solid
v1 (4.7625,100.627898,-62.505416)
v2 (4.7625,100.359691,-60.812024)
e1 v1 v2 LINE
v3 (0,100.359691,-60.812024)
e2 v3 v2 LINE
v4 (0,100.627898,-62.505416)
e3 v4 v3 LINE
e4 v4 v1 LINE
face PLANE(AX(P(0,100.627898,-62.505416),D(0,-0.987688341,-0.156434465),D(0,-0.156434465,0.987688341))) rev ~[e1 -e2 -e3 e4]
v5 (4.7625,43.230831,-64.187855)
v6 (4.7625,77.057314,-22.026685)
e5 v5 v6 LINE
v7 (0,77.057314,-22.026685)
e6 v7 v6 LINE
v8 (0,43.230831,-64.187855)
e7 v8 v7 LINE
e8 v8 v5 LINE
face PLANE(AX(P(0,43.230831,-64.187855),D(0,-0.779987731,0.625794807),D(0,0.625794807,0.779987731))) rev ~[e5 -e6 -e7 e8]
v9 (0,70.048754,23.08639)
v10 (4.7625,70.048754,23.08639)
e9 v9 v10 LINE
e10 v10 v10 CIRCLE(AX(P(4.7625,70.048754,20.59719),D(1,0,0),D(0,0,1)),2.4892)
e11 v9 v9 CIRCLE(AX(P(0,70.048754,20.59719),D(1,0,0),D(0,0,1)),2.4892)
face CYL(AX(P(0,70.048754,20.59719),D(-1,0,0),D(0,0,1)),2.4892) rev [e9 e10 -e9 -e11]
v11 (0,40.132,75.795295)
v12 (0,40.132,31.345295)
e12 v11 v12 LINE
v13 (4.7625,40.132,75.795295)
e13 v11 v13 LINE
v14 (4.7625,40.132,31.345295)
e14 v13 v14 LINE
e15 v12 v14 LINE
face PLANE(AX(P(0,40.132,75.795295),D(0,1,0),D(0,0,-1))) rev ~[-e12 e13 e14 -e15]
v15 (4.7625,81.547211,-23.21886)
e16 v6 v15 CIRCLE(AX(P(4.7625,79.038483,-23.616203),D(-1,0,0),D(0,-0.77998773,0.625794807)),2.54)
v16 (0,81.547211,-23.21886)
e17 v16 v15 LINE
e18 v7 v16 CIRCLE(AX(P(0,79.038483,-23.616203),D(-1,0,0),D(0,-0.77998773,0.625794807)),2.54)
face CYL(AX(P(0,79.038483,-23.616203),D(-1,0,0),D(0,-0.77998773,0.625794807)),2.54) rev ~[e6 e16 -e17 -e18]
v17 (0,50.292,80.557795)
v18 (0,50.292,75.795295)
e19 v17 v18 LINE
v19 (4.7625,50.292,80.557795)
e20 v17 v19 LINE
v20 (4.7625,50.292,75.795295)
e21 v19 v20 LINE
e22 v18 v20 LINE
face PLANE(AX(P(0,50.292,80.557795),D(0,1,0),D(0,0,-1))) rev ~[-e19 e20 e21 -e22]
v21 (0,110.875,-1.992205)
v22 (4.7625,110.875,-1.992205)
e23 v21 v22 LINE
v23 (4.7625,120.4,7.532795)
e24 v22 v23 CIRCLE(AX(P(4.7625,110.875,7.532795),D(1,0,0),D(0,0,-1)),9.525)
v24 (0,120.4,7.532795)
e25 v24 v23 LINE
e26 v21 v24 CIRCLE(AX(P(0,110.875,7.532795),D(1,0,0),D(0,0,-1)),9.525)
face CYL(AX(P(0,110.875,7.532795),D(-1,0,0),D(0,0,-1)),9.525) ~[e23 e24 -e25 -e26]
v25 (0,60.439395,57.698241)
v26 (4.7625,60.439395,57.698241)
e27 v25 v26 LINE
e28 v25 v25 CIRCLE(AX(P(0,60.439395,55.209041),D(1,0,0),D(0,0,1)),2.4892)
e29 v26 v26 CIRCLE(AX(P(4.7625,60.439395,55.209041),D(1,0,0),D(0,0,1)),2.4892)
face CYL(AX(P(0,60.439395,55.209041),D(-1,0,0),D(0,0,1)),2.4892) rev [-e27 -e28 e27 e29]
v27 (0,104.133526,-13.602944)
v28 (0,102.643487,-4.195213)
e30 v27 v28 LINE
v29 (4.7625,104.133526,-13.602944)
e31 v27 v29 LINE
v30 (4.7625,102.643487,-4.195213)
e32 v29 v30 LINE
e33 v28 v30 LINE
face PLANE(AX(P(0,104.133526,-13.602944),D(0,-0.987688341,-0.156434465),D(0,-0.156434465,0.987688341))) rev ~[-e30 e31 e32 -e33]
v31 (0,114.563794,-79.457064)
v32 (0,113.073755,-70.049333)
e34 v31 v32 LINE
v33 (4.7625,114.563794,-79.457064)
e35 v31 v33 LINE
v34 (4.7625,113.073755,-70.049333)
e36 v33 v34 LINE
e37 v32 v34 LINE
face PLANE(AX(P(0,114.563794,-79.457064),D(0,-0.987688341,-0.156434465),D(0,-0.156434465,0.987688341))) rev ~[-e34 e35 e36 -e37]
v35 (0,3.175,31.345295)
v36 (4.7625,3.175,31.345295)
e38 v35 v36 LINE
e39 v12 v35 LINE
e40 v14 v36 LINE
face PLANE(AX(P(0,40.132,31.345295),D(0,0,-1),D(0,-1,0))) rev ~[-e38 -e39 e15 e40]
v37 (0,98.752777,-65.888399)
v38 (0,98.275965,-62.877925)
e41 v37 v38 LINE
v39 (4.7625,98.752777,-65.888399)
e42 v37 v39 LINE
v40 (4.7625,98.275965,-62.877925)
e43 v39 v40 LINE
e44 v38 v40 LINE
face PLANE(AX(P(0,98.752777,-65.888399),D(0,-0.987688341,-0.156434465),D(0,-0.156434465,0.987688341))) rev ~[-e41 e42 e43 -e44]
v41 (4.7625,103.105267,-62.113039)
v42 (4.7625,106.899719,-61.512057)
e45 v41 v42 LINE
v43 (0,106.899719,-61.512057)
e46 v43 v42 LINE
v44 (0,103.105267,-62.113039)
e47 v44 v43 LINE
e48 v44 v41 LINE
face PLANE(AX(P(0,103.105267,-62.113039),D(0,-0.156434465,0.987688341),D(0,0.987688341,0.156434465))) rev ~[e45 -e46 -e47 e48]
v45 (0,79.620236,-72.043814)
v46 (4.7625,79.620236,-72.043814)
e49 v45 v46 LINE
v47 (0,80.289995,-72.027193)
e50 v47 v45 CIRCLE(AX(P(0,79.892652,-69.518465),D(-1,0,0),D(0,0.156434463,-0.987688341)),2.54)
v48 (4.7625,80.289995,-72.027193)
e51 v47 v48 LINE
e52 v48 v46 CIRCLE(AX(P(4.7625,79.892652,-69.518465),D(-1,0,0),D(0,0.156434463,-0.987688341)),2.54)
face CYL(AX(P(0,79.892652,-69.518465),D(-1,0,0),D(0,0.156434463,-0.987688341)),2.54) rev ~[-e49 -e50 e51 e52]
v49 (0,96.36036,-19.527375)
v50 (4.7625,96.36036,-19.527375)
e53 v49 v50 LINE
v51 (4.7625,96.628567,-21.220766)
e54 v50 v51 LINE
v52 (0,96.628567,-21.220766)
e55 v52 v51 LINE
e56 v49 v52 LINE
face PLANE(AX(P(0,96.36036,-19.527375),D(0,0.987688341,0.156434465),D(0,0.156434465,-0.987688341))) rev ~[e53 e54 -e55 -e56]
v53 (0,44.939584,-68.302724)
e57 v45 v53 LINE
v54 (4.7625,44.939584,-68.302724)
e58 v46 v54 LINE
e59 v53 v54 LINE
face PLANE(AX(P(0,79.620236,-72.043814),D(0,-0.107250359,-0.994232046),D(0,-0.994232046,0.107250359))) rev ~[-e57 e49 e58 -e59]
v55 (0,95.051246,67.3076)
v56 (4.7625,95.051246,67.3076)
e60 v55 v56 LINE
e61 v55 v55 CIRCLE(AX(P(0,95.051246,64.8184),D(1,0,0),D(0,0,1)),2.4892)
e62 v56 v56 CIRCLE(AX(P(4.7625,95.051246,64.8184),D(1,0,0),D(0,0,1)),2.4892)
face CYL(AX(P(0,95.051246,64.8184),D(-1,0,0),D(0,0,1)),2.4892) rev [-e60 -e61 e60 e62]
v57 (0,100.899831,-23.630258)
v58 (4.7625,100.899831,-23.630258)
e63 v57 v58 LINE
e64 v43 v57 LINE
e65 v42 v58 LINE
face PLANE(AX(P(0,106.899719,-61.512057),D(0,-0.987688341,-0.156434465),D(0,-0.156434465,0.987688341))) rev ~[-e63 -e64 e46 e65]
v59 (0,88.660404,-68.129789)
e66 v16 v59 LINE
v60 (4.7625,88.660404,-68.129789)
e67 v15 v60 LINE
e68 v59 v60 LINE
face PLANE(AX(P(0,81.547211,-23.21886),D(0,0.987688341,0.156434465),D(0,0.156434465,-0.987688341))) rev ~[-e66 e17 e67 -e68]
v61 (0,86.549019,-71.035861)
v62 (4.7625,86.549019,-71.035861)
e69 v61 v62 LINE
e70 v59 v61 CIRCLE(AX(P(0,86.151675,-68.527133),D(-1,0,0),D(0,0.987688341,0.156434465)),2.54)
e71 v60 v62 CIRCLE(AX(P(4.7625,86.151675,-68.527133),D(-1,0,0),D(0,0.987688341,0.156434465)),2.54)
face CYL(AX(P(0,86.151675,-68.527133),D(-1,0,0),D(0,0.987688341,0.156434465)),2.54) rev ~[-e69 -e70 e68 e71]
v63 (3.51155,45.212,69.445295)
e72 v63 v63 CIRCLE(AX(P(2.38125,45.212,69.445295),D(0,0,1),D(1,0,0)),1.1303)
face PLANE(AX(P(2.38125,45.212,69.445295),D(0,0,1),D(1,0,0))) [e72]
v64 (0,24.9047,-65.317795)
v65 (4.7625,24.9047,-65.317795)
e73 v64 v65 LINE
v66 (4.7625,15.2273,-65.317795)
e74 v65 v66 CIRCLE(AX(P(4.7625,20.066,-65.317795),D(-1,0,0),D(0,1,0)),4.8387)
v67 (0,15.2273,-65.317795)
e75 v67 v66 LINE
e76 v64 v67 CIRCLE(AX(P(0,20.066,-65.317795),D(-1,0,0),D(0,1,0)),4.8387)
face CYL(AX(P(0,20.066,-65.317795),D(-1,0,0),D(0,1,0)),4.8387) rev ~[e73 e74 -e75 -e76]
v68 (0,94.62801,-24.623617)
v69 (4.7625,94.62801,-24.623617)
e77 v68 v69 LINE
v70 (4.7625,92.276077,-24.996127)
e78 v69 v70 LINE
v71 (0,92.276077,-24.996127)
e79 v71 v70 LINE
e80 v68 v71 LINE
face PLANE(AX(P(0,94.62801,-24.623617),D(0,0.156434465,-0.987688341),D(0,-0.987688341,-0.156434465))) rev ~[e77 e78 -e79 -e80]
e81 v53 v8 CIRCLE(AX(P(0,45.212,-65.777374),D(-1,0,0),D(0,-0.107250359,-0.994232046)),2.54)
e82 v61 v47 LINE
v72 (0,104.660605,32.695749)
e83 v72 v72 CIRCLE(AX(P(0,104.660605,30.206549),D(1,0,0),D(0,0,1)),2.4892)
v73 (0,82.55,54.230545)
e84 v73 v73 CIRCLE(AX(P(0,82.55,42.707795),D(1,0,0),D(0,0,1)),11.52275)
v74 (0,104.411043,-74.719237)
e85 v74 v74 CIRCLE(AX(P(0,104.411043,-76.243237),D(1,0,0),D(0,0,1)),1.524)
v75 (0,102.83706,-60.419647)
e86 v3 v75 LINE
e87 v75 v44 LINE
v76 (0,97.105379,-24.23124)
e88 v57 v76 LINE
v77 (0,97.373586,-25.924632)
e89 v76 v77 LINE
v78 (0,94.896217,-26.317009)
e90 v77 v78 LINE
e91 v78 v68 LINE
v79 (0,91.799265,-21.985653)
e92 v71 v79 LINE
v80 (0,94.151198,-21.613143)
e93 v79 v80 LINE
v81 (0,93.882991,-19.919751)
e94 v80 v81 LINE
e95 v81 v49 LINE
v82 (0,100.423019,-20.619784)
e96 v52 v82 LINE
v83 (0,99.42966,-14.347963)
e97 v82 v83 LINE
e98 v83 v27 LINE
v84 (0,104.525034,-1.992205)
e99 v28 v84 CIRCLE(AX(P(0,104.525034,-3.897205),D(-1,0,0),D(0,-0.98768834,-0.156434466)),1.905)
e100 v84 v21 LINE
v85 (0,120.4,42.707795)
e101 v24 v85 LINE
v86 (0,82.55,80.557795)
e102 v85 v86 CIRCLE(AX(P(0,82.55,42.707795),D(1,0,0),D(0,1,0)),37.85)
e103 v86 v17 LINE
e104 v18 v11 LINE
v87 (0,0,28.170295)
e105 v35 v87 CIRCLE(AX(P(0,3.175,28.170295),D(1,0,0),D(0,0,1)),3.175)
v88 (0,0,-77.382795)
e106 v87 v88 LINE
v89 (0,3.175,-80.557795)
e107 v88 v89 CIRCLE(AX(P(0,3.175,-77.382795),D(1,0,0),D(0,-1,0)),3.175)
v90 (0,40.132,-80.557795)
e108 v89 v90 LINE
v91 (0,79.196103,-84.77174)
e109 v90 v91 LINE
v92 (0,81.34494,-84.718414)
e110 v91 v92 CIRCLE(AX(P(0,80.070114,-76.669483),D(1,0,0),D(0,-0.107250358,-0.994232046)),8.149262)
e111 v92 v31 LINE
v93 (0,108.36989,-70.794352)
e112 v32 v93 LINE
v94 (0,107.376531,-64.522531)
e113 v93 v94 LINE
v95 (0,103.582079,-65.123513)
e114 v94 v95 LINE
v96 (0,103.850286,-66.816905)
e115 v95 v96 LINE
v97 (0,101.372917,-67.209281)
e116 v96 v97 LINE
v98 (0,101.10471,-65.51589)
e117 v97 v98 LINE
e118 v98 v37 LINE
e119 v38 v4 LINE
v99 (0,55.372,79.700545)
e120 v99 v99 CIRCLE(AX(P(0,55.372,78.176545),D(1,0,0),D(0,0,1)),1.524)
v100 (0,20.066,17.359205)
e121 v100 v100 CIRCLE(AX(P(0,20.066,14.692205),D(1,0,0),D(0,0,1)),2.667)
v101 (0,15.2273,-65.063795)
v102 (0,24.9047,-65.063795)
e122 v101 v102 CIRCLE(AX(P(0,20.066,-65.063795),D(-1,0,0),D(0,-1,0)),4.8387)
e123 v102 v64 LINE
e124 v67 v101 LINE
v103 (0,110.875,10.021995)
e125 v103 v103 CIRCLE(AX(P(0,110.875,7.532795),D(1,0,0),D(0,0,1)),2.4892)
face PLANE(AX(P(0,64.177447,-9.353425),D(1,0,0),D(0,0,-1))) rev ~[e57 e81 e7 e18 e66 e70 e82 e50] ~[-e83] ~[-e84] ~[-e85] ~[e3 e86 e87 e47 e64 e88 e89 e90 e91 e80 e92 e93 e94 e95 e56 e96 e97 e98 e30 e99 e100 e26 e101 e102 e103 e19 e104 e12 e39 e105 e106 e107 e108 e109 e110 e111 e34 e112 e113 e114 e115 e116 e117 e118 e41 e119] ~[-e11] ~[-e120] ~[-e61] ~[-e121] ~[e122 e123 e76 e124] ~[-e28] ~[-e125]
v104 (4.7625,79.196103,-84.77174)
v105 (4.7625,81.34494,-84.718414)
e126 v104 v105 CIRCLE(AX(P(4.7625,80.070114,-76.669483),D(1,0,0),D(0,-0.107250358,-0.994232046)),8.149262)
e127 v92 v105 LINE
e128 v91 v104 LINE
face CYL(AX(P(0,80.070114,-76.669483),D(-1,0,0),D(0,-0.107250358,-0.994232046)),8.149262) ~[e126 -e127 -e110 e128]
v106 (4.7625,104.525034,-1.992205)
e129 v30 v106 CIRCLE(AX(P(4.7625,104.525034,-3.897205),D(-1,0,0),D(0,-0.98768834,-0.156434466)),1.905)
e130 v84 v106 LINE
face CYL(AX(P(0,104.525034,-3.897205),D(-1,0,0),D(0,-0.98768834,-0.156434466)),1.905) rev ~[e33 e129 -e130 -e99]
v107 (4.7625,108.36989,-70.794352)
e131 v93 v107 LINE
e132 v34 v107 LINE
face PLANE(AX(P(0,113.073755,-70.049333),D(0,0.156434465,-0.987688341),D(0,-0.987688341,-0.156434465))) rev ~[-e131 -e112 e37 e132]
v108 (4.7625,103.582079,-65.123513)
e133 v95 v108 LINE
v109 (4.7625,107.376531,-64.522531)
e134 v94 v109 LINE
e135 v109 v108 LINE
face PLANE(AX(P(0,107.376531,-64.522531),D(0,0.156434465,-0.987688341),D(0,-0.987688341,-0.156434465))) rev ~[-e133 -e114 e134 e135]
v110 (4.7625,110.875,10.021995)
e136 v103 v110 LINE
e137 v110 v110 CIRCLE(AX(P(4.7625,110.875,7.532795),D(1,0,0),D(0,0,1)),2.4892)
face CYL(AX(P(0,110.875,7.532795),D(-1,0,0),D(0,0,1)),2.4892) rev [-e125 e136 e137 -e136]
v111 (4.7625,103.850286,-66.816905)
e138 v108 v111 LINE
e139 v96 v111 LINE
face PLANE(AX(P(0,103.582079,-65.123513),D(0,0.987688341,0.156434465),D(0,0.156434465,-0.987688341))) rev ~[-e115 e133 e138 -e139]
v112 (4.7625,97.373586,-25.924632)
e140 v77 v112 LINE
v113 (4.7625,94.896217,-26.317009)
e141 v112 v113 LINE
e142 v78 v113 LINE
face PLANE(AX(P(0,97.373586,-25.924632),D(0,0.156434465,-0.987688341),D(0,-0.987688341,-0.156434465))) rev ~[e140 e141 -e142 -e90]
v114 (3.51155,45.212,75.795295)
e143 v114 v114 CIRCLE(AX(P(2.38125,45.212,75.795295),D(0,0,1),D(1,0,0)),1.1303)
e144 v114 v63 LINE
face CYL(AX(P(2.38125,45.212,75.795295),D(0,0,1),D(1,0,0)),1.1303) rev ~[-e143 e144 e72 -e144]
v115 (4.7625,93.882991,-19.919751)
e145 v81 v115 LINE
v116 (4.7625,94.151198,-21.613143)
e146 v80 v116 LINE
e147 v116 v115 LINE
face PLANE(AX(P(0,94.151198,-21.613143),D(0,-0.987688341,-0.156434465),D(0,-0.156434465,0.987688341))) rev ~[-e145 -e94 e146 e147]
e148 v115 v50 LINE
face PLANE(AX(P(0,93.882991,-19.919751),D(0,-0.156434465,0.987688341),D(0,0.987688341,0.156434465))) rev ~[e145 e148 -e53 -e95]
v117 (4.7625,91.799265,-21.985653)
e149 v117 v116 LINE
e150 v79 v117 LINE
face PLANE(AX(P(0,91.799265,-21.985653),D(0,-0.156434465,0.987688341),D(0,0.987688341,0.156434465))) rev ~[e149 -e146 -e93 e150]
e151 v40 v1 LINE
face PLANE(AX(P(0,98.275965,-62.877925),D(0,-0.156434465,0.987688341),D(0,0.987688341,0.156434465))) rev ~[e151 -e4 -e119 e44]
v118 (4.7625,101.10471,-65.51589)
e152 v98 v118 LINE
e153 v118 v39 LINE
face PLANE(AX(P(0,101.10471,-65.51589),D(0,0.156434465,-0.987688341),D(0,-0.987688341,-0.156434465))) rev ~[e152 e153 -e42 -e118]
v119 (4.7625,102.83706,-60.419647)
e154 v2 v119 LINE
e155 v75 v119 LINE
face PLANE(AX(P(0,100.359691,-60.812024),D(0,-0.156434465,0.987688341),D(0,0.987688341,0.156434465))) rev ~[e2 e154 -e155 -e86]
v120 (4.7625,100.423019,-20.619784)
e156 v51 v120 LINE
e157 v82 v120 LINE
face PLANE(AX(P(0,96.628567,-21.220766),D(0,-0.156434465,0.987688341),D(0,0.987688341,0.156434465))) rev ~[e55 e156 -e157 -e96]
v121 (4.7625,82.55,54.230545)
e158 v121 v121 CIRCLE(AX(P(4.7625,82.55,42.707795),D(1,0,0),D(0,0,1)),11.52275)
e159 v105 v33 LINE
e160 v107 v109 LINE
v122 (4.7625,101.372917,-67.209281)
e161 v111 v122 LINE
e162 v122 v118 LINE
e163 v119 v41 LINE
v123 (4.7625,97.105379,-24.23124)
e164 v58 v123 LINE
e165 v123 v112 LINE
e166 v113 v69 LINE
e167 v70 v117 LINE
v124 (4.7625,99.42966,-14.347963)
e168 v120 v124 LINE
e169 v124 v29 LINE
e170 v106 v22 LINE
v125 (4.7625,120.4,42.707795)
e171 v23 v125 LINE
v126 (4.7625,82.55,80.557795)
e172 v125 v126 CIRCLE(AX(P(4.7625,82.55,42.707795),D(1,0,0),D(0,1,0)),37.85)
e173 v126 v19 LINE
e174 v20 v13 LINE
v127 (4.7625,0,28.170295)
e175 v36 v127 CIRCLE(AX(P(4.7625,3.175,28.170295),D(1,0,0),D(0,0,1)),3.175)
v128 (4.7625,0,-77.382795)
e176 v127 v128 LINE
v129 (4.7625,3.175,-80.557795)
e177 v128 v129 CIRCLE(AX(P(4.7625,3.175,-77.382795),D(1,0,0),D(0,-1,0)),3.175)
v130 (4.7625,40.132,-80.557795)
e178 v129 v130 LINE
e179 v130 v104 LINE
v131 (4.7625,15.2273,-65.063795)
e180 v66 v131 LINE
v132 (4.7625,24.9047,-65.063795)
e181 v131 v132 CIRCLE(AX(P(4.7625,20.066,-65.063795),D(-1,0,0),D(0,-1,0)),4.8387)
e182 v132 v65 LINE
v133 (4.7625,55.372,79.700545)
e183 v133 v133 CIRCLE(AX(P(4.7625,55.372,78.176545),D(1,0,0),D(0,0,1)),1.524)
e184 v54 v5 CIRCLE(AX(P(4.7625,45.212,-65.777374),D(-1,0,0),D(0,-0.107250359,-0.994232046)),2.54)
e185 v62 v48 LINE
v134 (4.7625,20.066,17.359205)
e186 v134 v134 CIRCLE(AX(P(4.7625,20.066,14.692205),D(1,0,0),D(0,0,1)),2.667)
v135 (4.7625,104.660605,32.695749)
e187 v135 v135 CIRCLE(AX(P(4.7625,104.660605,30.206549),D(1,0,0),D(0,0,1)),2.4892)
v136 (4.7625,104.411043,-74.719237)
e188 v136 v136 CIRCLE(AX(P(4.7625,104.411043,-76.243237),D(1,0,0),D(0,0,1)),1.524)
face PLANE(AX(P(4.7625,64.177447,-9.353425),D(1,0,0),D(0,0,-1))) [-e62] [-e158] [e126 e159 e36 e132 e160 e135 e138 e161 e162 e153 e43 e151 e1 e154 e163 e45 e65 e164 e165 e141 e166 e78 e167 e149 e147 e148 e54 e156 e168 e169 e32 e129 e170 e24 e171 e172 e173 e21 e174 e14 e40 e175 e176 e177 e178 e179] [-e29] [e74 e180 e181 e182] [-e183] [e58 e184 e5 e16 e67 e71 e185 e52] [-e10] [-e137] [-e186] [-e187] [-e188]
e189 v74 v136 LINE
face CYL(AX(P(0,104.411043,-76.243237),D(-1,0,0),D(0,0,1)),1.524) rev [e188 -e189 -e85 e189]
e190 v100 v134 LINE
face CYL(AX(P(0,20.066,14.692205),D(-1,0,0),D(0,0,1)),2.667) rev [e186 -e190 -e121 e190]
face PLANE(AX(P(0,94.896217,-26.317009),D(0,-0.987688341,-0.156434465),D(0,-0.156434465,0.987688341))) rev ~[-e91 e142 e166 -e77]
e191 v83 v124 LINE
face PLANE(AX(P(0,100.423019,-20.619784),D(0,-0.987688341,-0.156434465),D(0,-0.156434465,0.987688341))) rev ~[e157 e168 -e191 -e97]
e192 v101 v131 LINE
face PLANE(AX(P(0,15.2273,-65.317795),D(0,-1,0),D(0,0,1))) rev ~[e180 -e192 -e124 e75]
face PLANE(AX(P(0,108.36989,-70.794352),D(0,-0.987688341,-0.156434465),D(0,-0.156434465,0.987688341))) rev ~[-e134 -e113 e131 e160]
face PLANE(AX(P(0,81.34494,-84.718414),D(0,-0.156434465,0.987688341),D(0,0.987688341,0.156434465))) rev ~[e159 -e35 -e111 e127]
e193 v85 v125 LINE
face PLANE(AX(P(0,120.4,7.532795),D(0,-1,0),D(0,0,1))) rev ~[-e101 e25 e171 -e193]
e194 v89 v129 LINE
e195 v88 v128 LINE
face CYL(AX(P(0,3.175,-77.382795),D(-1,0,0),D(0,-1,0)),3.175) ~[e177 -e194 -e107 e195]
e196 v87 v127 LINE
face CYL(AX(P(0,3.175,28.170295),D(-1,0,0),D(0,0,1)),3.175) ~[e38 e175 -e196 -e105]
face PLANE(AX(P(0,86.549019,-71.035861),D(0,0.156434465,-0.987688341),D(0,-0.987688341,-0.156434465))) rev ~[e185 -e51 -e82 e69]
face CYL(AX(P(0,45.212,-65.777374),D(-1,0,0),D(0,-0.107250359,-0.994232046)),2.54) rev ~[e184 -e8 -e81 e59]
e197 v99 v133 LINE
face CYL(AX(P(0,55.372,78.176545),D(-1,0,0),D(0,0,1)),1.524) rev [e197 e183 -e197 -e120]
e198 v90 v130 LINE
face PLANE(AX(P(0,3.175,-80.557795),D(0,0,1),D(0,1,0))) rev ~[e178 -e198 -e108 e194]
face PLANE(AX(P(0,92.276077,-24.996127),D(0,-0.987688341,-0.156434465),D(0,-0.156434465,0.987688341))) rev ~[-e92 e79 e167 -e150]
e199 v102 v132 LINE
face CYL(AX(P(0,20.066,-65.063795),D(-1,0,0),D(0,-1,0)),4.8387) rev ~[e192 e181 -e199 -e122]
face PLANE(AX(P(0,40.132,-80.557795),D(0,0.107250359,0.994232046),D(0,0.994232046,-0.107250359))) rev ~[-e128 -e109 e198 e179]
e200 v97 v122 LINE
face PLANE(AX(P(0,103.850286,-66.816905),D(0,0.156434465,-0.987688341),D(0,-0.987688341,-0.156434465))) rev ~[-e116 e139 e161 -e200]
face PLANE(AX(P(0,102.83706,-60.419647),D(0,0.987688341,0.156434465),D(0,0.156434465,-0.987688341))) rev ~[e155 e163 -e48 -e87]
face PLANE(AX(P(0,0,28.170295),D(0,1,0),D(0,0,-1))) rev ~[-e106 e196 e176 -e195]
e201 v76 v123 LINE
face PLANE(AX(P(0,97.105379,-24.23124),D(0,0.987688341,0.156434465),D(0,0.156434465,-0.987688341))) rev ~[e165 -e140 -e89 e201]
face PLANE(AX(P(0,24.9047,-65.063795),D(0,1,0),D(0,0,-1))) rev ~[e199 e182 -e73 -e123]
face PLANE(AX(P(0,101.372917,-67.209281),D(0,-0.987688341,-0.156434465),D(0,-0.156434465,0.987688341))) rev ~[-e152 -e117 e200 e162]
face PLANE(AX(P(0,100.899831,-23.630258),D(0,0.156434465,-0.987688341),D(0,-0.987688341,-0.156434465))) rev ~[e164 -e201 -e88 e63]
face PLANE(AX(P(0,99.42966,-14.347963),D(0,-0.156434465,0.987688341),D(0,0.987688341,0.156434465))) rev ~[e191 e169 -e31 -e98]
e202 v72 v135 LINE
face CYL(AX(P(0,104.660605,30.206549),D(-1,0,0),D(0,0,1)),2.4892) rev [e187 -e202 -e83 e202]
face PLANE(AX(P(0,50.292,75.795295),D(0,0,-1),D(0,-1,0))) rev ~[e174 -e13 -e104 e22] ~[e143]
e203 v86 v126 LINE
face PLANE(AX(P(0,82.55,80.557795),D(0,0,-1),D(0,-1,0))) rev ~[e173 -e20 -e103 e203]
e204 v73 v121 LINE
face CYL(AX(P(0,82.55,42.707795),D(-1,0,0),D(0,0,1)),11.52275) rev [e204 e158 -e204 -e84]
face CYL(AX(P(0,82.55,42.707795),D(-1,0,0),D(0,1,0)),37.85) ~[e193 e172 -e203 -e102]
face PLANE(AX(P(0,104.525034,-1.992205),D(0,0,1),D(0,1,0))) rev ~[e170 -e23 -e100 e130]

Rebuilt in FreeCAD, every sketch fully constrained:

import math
import FreeCAD as App
import Part
import Sketcher
Q = App.Units.Quantity

doc = App.newDocument("Part")
params = doc.addObject("Spreadsheet::Sheet", "Params")
for row, (alias, value) in enumerate([
    ("sketch1_radius", "0.1 in"),
    ("sketch1_diameter", "0.21 in"),
    ("sketch1_diameter2", "0.12 in"),
    ("sketch1_diameter3", "0.196 in"),
    ("sketch1_width", "0.4 in"),
    ("pad1_length", "0.1875 in"),
    ("sketch2_diameter", "0.089 in"),
    ("pocket1_length", "0.25 in"),
], start=1):
    params.set(f"A{row}", alias)
    params.set(f"B{row}", "=" + value)
    params.setAlias(f"B{row}", alias)

body = doc.addObject("PartDesign::Body", "Body")

sketch1 = body.newObject("Sketcher::SketchObject", "Sketch")
sketch1.AttachmentSupport = (doc.getObject("YZ_Plane"), [""])
sketch1.MapMode = "FlatFace"
sketch1.addGeometry(Part.LineSegment(App.Vector(0, 28.170295, 0), App.Vector(0, -77.382795, 0)), False)
sketch1.addGeometry(Part.ArcOfCircle(Part.Circle(App.Vector(3.175, -77.382795, 0), App.Vector(0, 0, 1), 3.175), math.radians(180), math.radians(270)), False)
sketch1.addGeometry(Part.LineSegment(App.Vector(3.175, -80.557795, 0), App.Vector(40.132, -80.557795, 0)), False)
sketch1.addGeometry(Part.LineSegment(App.Vector(40.132, -80.557795, 0), App.Vector(79.196103, -84.77174, 0)), False)
sketch1.addGeometry(Part.ArcOfCircle(Part.Circle(App.Vector(80.070114, -76.669483, 0), App.Vector(0, 0, 1), 8.149262), math.radians(-96.156835), math.radians(-81)), False)
sketch1.addGeometry(Part.LineSegment(App.Vector(81.34494, -84.718414, 0), App.Vector(114.563794, -79.457064, 0)), False)
sketch1.addGeometry(Part.LineSegment(App.Vector(114.563794, -79.457064, 0), App.Vector(113.073755, -70.049333, 0)), False)
sketch1.addGeometry(Part.LineSegment(App.Vector(113.073755, -70.049333, 0), App.Vector(108.36989, -70.794352, 0)), False)
sketch1.addGeometry(Part.LineSegment(App.Vector(108.36989, -70.794352, 0), App.Vector(107.376531, -64.522531, 0)), False)
sketch1.addGeometry(Part.LineSegment(App.Vector(107.376531, -64.522531, 0), App.Vector(103.582079, -65.123513, 0)), False)
sketch1.addGeometry(Part.LineSegment(App.Vector(103.582079, -65.123513, 0), App.Vector(103.850286, -66.816905, 0)), False)
sketch1.addGeometry(Part.LineSegment(App.Vector(103.850286, -66.816905, 0), App.Vector(101.372917, -67.209281, 0)), False)
sketch1.addGeometry(Part.LineSegment(App.Vector(101.372917, -67.209281, 0), App.Vector(101.10471, -65.51589, 0)), False)
sketch1.addGeometry(Part.LineSegment(App.Vector(101.10471, -65.51589, 0), App.Vector(98.752777, -65.888399, 0)), False)
sketch1.addGeometry(Part.LineSegment(App.Vector(98.752777, -65.888399, 0), App.Vector(98.275965, -62.877925, 0)), False)
sketch1.addGeometry(Part.LineSegment(App.Vector(98.275965, -62.877925, 0), App.Vector(100.627898, -62.505416, 0)), False)
sketch1.addGeometry(Part.LineSegment(App.Vector(100.627898, -62.505416, 0), App.Vector(100.359691, -60.812024, 0)), False)
sketch1.addGeometry(Part.LineSegment(App.Vector(100.359691, -60.812024, 0), App.Vector(102.83706, -60.419647, 0)), False)
sketch1.addGeometry(Part.LineSegment(App.Vector(102.83706, -60.419647, 0), App.Vector(103.105267, -62.113039, 0)), False)
sketch1.addGeometry(Part.LineSegment(App.Vector(103.105267, -62.113039, 0), App.Vector(106.899719, -61.512057, 0)), False)
sketch1.addGeometry(Part.LineSegment(App.Vector(106.899719, -61.512057, 0), App.Vector(100.899831, -23.630258, 0)), False)
sketch1.addGeometry(Part.LineSegment(App.Vector(100.899831, -23.630258, 0), App.Vector(97.105379, -24.23124, 0)), False)
sketch1.addGeometry(Part.LineSegment(App.Vector(97.105379, -24.23124, 0), App.Vector(97.373586, -25.924632, 0)), False)
sketch1.addGeometry(Part.LineSegment(App.Vector(97.373586, -25.924632, 0), App.Vector(94.896217, -26.317009, 0)), False)
sketch1.addGeometry(Part.LineSegment(App.Vector(94.896217, -26.317009, 0), App.Vector(94.62801, -24.623617, 0)), False)
sketch1.addGeometry(Part.LineSegment(App.Vector(94.62801, -24.623617, 0), App.Vector(92.276077, -24.996127, 0)), False)
sketch1.addGeometry(Part.LineSegment(App.Vector(92.276077, -24.996127, 0), App.Vector(91.799265, -21.985653, 0)), False)
sketch1.addGeometry(Part.LineSegment(App.Vector(91.799265, -21.985653, 0), App.Vector(94.151198, -21.613143, 0)), False)
sketch1.addGeometry(Part.LineSegment(App.Vector(94.151198, -21.613143, 0), App.Vector(93.882991, -19.919751, 0)), False)
sketch1.addGeometry(Part.LineSegment(App.Vector(93.882991, -19.919751, 0), App.Vector(96.36036, -19.527375, 0)), False)
sketch1.addGeometry(Part.LineSegment(App.Vector(96.36036, -19.527375, 0), App.Vector(96.628567, -21.220766, 0)), False)
sketch1.addGeometry(Part.LineSegment(App.Vector(96.628567, -21.220766, 0), App.Vector(100.423019, -20.619784, 0)), False)
sketch1.addGeometry(Part.LineSegment(App.Vector(100.423019, -20.619784, 0), App.Vector(99.42966, -14.347963, 0)), False)
sketch1.addGeometry(Part.LineSegment(App.Vector(99.42966, -14.347963, 0), App.Vector(104.133526, -13.602944, 0)), False)
sketch1.addGeometry(Part.LineSegment(App.Vector(104.133526, -13.602944, 0), App.Vector(102.643487, -4.195213, 0)), False)
sketch1.addGeometry(Part.ArcOfCircle(Part.Circle(App.Vector(104.525034, -3.897205, 0), App.Vector(0, 0, 1), 1.905), math.radians(90), math.radians(189)), False)
sketch1.addGeometry(Part.LineSegment(App.Vector(104.525034, -1.992205, 0), App.Vector(110.875, -1.992205, 0)), False)
sketch1.addGeometry(Part.ArcOfCircle(Part.Circle(App.Vector(110.875, 7.532795, 0), App.Vector(0, 0, 1), 9.525), math.radians(-90), math.radians(0)), False)
sketch1.addGeometry(Part.LineSegment(App.Vector(120.4, 7.532795, 0), App.Vector(120.4, 42.707795, 0)), False)
sketch1.addGeometry(Part.ArcOfCircle(Part.Circle(App.Vector(82.55, 42.707795, 0), App.Vector(0, 0, 1), 37.85), math.radians(0), math.radians(90)), False)
sketch1.addGeometry(Part.LineSegment(App.Vector(82.55, 80.557795, 0), App.Vector(50.292, 80.557795, 0)), False)
sketch1.addGeometry(Part.LineSegment(App.Vector(50.292, 80.557795, 0), App.Vector(50.292, 75.795295, 0)), False)
sketch1.addGeometry(Part.LineSegment(App.Vector(50.292, 75.795295, 0), App.Vector(40.132, 75.795295, 0)), False)
sketch1.addGeometry(Part.LineSegment(App.Vector(40.132, 75.795295, 0), App.Vector(40.132, 31.345295, 0)), False)
sketch1.addGeometry(Part.LineSegment(App.Vector(40.132, 31.345295, 0), App.Vector(3.175, 31.345295, 0)), False)
sketch1.addGeometry(Part.ArcOfCircle(Part.Circle(App.Vector(3.175, 28.170295, 0), App.Vector(0, 0, 1), 3.175), math.radians(90), math.radians(180)), False)
sketch1.addGeometry(Part.Circle(App.Vector(20.066, 14.692205, 0), App.Vector(0, 0, 1), 2.667), False)
sketch1.addGeometry(Part.Circle(App.Vector(55.372, 78.176545, 0), App.Vector(0, 0, 1), 1.524), False)
sketch1.addGeometry(Part.Circle(App.Vector(60.439395, 55.209041, 0), App.Vector(0, 0, 1), 2.4892), False)
sketch1.addGeometry(Part.ArcOfCircle(Part.Circle(App.Vector(20.066, -65.317795, 0), App.Vector(0, 0, 1), 4.8387), math.radians(180), math.radians(360)), False)
sketch1.addGeometry(Part.LineSegment(App.Vector(15.2273, -65.317795, 0), App.Vector(15.2273, -65.063795, 0)), False)
sketch1.addGeometry(Part.ArcOfCircle(Part.Circle(App.Vector(20.066, -65.063795, 0), App.Vector(0, 0, 1), 4.8387), math.radians(0), math.radians(180)), False)
sketch1.addGeometry(Part.LineSegment(App.Vector(24.9047, -65.063795, 0), App.Vector(24.9047, -65.317795, 0)), False)
sketch1.addGeometry(Part.Circle(App.Vector(82.55, 42.707795, 0), App.Vector(0, 0, 1), 11.52275), False)
sketch1.addGeometry(Part.Circle(App.Vector(70.048754, 20.59719, 0), App.Vector(0, 0, 1), 2.4892), False)
sketch1.addGeometry(Part.Circle(App.Vector(95.051246, 64.8184, 0), App.Vector(0, 0, 1), 2.4892), False)
sketch1.addGeometry(Part.Circle(App.Vector(104.660605, 30.206549, 0), App.Vector(0, 0, 1), 2.4892), False)
sketch1.addGeometry(Part.Circle(App.Vector(110.875, 7.532795, 0), App.Vector(0, 0, 1), 2.4892), False)
sketch1.addGeometry(Part.ArcOfCircle(Part.Circle(App.Vector(86.151675, -68.527133, 0), App.Vector(0, 0, 1), 2.54), math.radians(-81), math.radians(9)), False)
sketch1.addGeometry(Part.LineSegment(App.Vector(86.549019, -71.035861, 0), App.Vector(80.289995, -72.027193, 0)), False)
sketch1.addGeometry(Part.ArcOfCircle(Part.Circle(App.Vector(79.892652, -69.518465, 0), App.Vector(0, 0, 1), 2.54), math.radians(-96.156835), math.radians(-81)), False)
sketch1.addGeometry(Part.LineSegment(App.Vector(79.620236, -72.043814, 0), App.Vector(44.939584, -68.302724, 0)), False)
sketch1.addGeometry(Part.ArcOfCircle(Part.Circle(App.Vector(45.212, -65.777374, 0), App.Vector(0, 0, 1), 2.54), math.radians(141.259452), math.radians(263.843165)), False)
sketch1.addGeometry(Part.LineSegment(App.Vector(43.230831, -64.187855, 0), App.Vector(77.057314, -22.026685, 0)), False)
sketch1.addGeometry(Part.ArcOfCircle(Part.Circle(App.Vector(79.038483, -23.616203, 0), App.Vector(0, 0, 1), 2.54), math.radians(9), math.radians(141.259452)), False)
sketch1.addGeometry(Part.LineSegment(App.Vector(81.547211, -23.21886, 0), App.Vector(88.660404, -68.129789, 0)), False)
sketch1.addGeometry(Part.Circle(App.Vector(104.411043, -76.243237, 0), App.Vector(0, 0, 1), 1.524), False)
sketch1.addConstraint(Sketcher.Constraint("Tangent", 0, 2, 1, 1))
sketch1.addConstraint(Sketcher.Constraint("Tangent", 1, 2, 2, 1))
sketch1.addConstraint(Sketcher.Constraint("Coincident", 2, 2, 3, 1))
sketch1.addConstraint(Sketcher.Constraint("Tangent", 3, 2, 4, 1))
sketch1.addConstraint(Sketcher.Constraint("Tangent", 4, 2, 5, 1))
sketch1.addConstraint(Sketcher.Constraint("Coincident", 5, 2, 6, 1))
sketch1.addConstraint(Sketcher.Constraint("Coincident", 6, 2, 7, 1))
sketch1.addConstraint(Sketcher.Constraint("Coincident", 7, 2, 8, 1))
sketch1.addConstraint(Sketcher.Constraint("Coincident", 8, 2, 9, 1))
sketch1.addConstraint(Sketcher.Constraint("Coincident", 9, 2, 10, 1))
sketch1.addConstraint(Sketcher.Constraint("Coincident", 10, 2, 11, 1))
sketch1.addConstraint(Sketcher.Constraint("Coincident", 11, 2, 12, 1))
sketch1.addConstraint(Sketcher.Constraint("Coincident", 12, 2, 13, 1))
sketch1.addConstraint(Sketcher.Constraint("Coincident", 13, 2, 14, 1))
sketch1.addConstraint(Sketcher.Constraint("Coincident", 14, 2, 15, 1))
sketch1.addConstraint(Sketcher.Constraint("Coincident", 15, 2, 16, 1))
sketch1.addConstraint(Sketcher.Constraint("Coincident", 16, 2, 17, 1))
sketch1.addConstraint(Sketcher.Constraint("Coincident", 17, 2, 18, 1))
sketch1.addConstraint(Sketcher.Constraint("Coincident", 18, 2, 19, 1))
sketch1.addConstraint(Sketcher.Constraint("Coincident", 19, 2, 20, 1))
sketch1.addConstraint(Sketcher.Constraint("Coincident", 20, 2, 21, 1))
sketch1.addConstraint(Sketcher.Constraint("Coincident", 21, 2, 22, 1))
sketch1.addConstraint(Sketcher.Constraint("Coincident", 22, 2, 23, 1))
sketch1.addConstraint(Sketcher.Constraint("Coincident", 23, 2, 24, 1))
sketch1.addConstraint(Sketcher.Constraint("Coincident", 24, 2, 25, 1))
sketch1.addConstraint(Sketcher.Constraint("Coincident", 25, 2, 26, 1))
sketch1.addConstraint(Sketcher.Constraint("Coincident", 26, 2, 27, 1))
sketch1.addConstraint(Sketcher.Constraint("Coincident", 27, 2, 28, 1))
sketch1.addConstraint(Sketcher.Constraint("Coincident", 28, 2, 29, 1))
sketch1.addConstraint(Sketcher.Constraint("Coincident", 29, 2, 30, 1))
sketch1.addConstraint(Sketcher.Constraint("Coincident", 30, 2, 31, 1))
sketch1.addConstraint(Sketcher.Constraint("Coincident", 31, 2, 32, 1))
sketch1.addConstraint(Sketcher.Constraint("Coincident", 32, 2, 33, 1))
sketch1.addConstraint(Sketcher.Constraint("Coincident", 33, 2, 34, 1))
sketch1.addConstraint(Sketcher.Constraint("Tangent", 34, 2, 35, 2))
sketch1.addConstraint(Sketcher.Constraint("Tangent", 35, 1, 36, 1))
sketch1.addConstraint(Sketcher.Constraint("Tangent", 36, 2, 37, 1))
sketch1.addConstraint(Sketcher.Constraint("Tangent", 37, 2, 38, 1))
sketch1.addConstraint(Sketcher.Constraint("Tangent", 38, 2, 39, 1))
sketch1.addConstraint(Sketcher.Constraint("Tangent", 39, 2, 40, 1))
sketch1.addConstraint(Sketcher.Constraint("Coincident", 40, 2, 41, 1))
sketch1.addConstraint(Sketcher.Constraint("Coincident", 41, 2, 42, 1))
sketch1.addConstraint(Sketcher.Constraint("Coincident", 42, 2, 43, 1))
sketch1.addConstraint(Sketcher.Constraint("Coincident", 43, 2, 44, 1))
sketch1.addConstraint(Sketcher.Constraint("Tangent", 44, 2, 45, 1))
sketch1.addConstraint(Sketcher.Constraint("Tangent", 45, 2, 0, 1))
sketch1.addConstraint(Sketcher.Constraint("Tangent", 49, 1, 50, 1))
sketch1.addConstraint(Sketcher.Constraint("Tangent", 50, 2, 51, 2))
sketch1.addConstraint(Sketcher.Constraint("Tangent", 51, 1, 52, 1))
sketch1.addConstraint(Sketcher.Constraint("Tangent", 52, 2, 49, 2))
sketch1.addConstraint(Sketcher.Constraint("Tangent", 58, 1, 59, 1))
sketch1.addConstraint(Sketcher.Constraint("Tangent", 59, 2, 60, 2))
sketch1.addConstraint(Sketcher.Constraint("Tangent", 60, 1, 61, 1))
sketch1.addConstraint(Sketcher.Constraint("Tangent", 61, 2, 62, 2))
sketch1.addConstraint(Sketcher.Constraint("Tangent", 62, 1, 63, 1))
sketch1.addConstraint(Sketcher.Constraint("Tangent", 63, 2, 64, 2))
sketch1.addConstraint(Sketcher.Constraint("Tangent", 64, 1, 65, 1))
sketch1.addConstraint(Sketcher.Constraint("Tangent", 65, 2, 58, 2))
sketch1.addConstraint(Sketcher.Constraint("Vertical", 0))
sketch1.addConstraint(Sketcher.Constraint("Horizontal", 2))
sketch1.addConstraint(Sketcher.Constraint("Horizontal", 36))
sketch1.addConstraint(Sketcher.Constraint("Vertical", 38))
sketch1.addConstraint(Sketcher.Constraint("Horizontal", 40))
sketch1.addConstraint(Sketcher.Constraint("Vertical", 41))
sketch1.addConstraint(Sketcher.Constraint("Horizontal", 42))
sketch1.addConstraint(Sketcher.Constraint("Vertical", 43))
sketch1.addConstraint(Sketcher.Constraint("Horizontal", 44))
sketch1.addConstraint(Sketcher.Constraint("Vertical", 50))
sketch1.addConstraint(Sketcher.Constraint("Vertical", 52))
sketch1.addConstraint(Sketcher.Constraint("Coincident", 53, 3, 39, 3))
sketch1.addConstraint(Sketcher.Constraint("Coincident", 57, 3, 37, 3))
sketch1.addConstraint(Sketcher.Constraint("Equal", 1, 45))
sketch1.addConstraint(Sketcher.Constraint("Equal", 48, 54))
sketch1.addConstraint(Sketcher.Constraint("Equal", 54, 55))
sketch1.addConstraint(Sketcher.Constraint("Equal", 55, 56))
sketch1.addConstraint(Sketcher.Constraint("Equal", 56, 57))
sketch1.addConstraint(Sketcher.Constraint("Equal", 58, 60))
sketch1.addConstraint(Sketcher.Constraint("Equal", 60, 62))
sketch1.addConstraint(Sketcher.Constraint("Equal", 62, 64))
sketch1.addConstraint(Sketcher.Constraint("Equal", 47, 66))
sketch1.addConstraint(Sketcher.Constraint("PointOnObject", 0, 2, -2))
sketch1.addConstraint(Sketcher.Constraint("Perpendicular", 5, 6))
sketch1.addConstraint(Sketcher.Constraint("Perpendicular", 6, 7))
sketch1.addConstraint(Sketcher.Constraint("Perpendicular", 7, 8))
sketch1.addConstraint(Sketcher.Constraint("Perpendicular", 8, 9))
sketch1.addConstraint(Sketcher.Constraint("Perpendicular", 9, 10))
sketch1.addConstraint(Sketcher.Constraint("Perpendicular", 10, 11))
sketch1.addConstraint(Sketcher.Constraint("Perpendicular", 11, 12))
sketch1.addConstraint(Sketcher.Constraint("Perpendicular", 12, 13))
sketch1.addConstraint(Sketcher.Constraint("Perpendicular", 13, 14))
sketch1.addConstraint(Sketcher.Constraint("Perpendicular", 14, 15))
sketch1.addConstraint(Sketcher.Constraint("Perpendicular", 15, 16))
sketch1.addConstraint(Sketcher.Constraint("Perpendicular", 16, 17))
sketch1.addConstraint(Sketcher.Constraint("Perpendicular", 17, 18))
sketch1.addConstraint(Sketcher.Constraint("Perpendicular", 18, 19))
sketch1.addConstraint(Sketcher.Constraint("Perpendicular", 19, 20))
sketch1.addConstraint(Sketcher.Constraint("Perpendicular", 20, 21))
sketch1.addConstraint(Sketcher.Constraint("Perpendicular", 21, 22))
sketch1.addConstraint(Sketcher.Constraint("Perpendicular", 22, 23))
sketch1.addConstraint(Sketcher.Constraint("Perpendicular", 23, 24))
sketch1.addConstraint(Sketcher.Constraint("Perpendicular", 24, 25))
sketch1.addConstraint(Sketcher.Constraint("Perpendicular", 25, 26))
sketch1.addConstraint(Sketcher.Constraint("Perpendicular", 26, 27))
sketch1.addConstraint(Sketcher.Constraint("Perpendicular", 27, 28))
sketch1.addConstraint(Sketcher.Constraint("Perpendicular", 28, 29))
sketch1.addConstraint(Sketcher.Constraint("Perpendicular", 29, 30))
sketch1.addConstraint(Sketcher.Constraint("Perpendicular", 30, 31))
sketch1.addConstraint(Sketcher.Constraint("Perpendicular", 31, 32))
sketch1.addConstraint(Sketcher.Constraint("Perpendicular", 32, 33))
sketch1.addConstraint(Sketcher.Constraint("Perpendicular", 33, 34))
sketch1.addConstraint(Sketcher.Constraint("Perpendicular", 34, 59))
sketch1.addConstraint(Sketcher.Constraint("Parallel", 3, 61))
sketch1.addConstraint(Sketcher.Constraint("Perpendicular", 59, 65))
sketch1.addConstraint(Sketcher.Constraint("Vertical", 46, 3, 49, 3))
sketch1.addConstraint(Sketcher.Constraint("Vertical", 2, 2, 42, 2))
sketch1.addConstraint(Sketcher.Constraint("Equal", 10, 12))
sketch1.addConstraint(Sketcher.Constraint("Equal", 13, 15))
sketch1.addConstraint(Sketcher.Constraint("Equal", 12, 16))
sketch1.addConstraint(Sketcher.Constraint("Equal", 11, 17))
sketch1.addConstraint(Sketcher.Constraint("Equal", 16, 18))
sketch1.addConstraint(Sketcher.Constraint("Equal", 9, 19))
sketch1.addConstraint(Sketcher.Constraint("Equal", 19, 21))
sketch1.addConstraint(Sketcher.Constraint("Equal", 18, 22))
sketch1.addConstraint(Sketcher.Constraint("Equal", 17, 23))
sketch1.addConstraint(Sketcher.Constraint("Equal", 22, 24))
sketch1.addConstraint(Sketcher.Constraint("Equal", 15, 25))
sketch1.addConstraint(Sketcher.Constraint("Equal", 14, 26))
sketch1.addConstraint(Sketcher.Constraint("Equal", 25, 27))
sketch1.addConstraint(Sketcher.Constraint("Equal", 24, 28))
sketch1.addConstraint(Sketcher.Constraint("Equal", 23, 29))
sketch1.addConstraint(Sketcher.Constraint("Equal", 28, 30))
sketch1.addConstraint(Sketcher.Constraint("Equal", 21, 31))
sketch1.addConstraint(Sketcher.Constraint("Equal", 8, 32))
sketch1.addConstraint(Sketcher.Constraint("Equal", 7, 33))
sketch1.addConstraint(Sketcher.Constraint("Equal", 6, 34))
sketch1.addConstraint(Sketcher.Constraint("Radius", 58, Q("0.1 in")))
sketch1.addConstraint(Sketcher.Constraint("Diameter", 46, Q("0.21 in")))
sketch1.addConstraint(Sketcher.Constraint("Diameter", 47, Q("0.12 in")))
sketch1.addConstraint(Sketcher.Constraint("Diameter", 48, Q("0.196 in")))
sketch1.addConstraint(Sketcher.Constraint("DistanceX", 42, 2, 42, 1, Q("0.4 in")))
sketch1.addConstraint(Sketcher.Constraint("Angle", 5, Q("9 deg")))
sketch1.addConstraint(Sketcher.Constraint("Radius", 1, Q("0.125 in")))
sketch1.addConstraint(Sketcher.Constraint("Radius", 35, Q("0.075 in")))
sketch1.addConstraint(Sketcher.Constraint("Radius", 37, Q("0.375 in")))
sketch1.addConstraint(Sketcher.Constraint("DistanceX", 40, 2, 40, 1, Q("1.27 in")))
sketch1.addConstraint(Sketcher.Constraint("DistanceY", 43, 2, 43, 1, Q("1.75 in")))
sketch1.addConstraint(Sketcher.Constraint("DistanceY", 50, 1, 50, 2, Q("0.01 in")))
sketch1.addConstraint(Sketcher.Constraint("Radius", 49, Q("0.1905 in")))
sketch1.addConstraint(Sketcher.Constraint("Distance", 8, Q("0.25 in")))
sketch1.addConstraint(Sketcher.Constraint("Distance", 14, Q("0.12 in")))
sketch1.addConstraint(Sketcher.Constraint("Distance", 20, Q("1.51 in")))
sketch1.addConstraint(Sketcher.Constraint("Diameter", 53, 23.045501))
sketch1.addConstraint(Sketcher.Constraint("DistanceX", 2, 1, 2, 2, Q("1.455 in")))
sketch1.addConstraint(Sketcher.Constraint("DistanceY", 41, 2, 41, 1, Q("0.1875 in")))
sketch1.addConstraint(Sketcher.Constraint("DistanceX", -1, 1, 46, 3, Q("0.79 in")))
sketch1.addConstraint(Sketcher.Constraint("DistanceX", -1, 1, 47, 3, Q("2.18 in")))
sketch1.addConstraint(Sketcher.Constraint("DistanceX", -1, 1, 62, 3, Q("1.78 in")))
sketch1.addConstraint(Sketcher.Constraint("Radius", 39, 37.85))
sketch1.addConstraint(Sketcher.Constraint("Distance", 6, Q("0.375 in")))
sketch1.addConstraint(Sketcher.Constraint("Distance", 7, Q("0.1875 in")))
sketch1.addConstraint(Sketcher.Constraint("Distance", 13, Q("0.09375 in")))
sketch1.addConstraint(Sketcher.Constraint("Radius", 4, 8.149262))
sketch1.addConstraint(Sketcher.Constraint("Distance", 10, Q("0.0675 in")))
sketch1.addConstraint(Sketcher.Constraint("DistanceY", 38, 1, 38, 2, 35.175))
sketch1.addConstraint(Sketcher.Constraint("DistanceY", 0, 2, 0, 1, 105.55309))
sketch1.addConstraint(Sketcher.Constraint("DistanceY", -1, 1, 55, 3, 64.8184))
sketch1.addConstraint(Sketcher.Constraint("DistanceY", 13, 2, -1, 1, 65.888399))
sketch1.addConstraint(Sketcher.Constraint("Distance", 3, 39.29073))
sketch1.addConstraint(Sketcher.Constraint("Distance", 5, 33.632931))
sketch1.addConstraint(Sketcher.Constraint("Distance", 9, 3.84175))
sketch1.addConstraint(Sketcher.Constraint("Distance", 11, 2.50825))
sketch1.addConstraint(Sketcher.Constraint("Distance", 61, 34.881849))
sketch1.addConstraint(Sketcher.Constraint("Distance", 65, 45.47075))
sketch1.addConstraint(Sketcher.Constraint("DistanceY", -1, 1, 48, 3, 55.209041))
sketch1.addConstraint(Sketcher.Constraint("DistanceY", -1, 1, 54, 3, 20.59719))
sketch1.addConstraint(Sketcher.Constraint("DistanceY", -1, 1, 56, 3, 30.206549))
sketch1.addConstraint(Sketcher.Constraint("DistanceX", -1, 1, 58, 1, 86.549019))
sketch1.addConstraint(Sketcher.Constraint("DistanceY", 58, 1, -1, 1, 71.035861))
sketch1.addConstraint(Sketcher.Constraint("DistanceY", -1, 1, 46, 3, 14.692205))
sketch1.addConstraint(Sketcher.Constraint("DistanceY", -1, 1, 47, 3, 78.176545))
sketch1.addConstraint(Sketcher.Constraint("DistanceX", -1, 1, 48, 3, 60.439395))
sketch1.addConstraint(Sketcher.Constraint("DistanceY", 49, 3, -1, 1, 65.317795))
sketch1.addConstraint(Sketcher.Constraint("DistanceX", -1, 1, 54, 3, 70.048754))
sketch1.addConstraint(Sketcher.Constraint("DistanceX", -1, 1, 55, 3, 95.051246))
sketch1.addConstraint(Sketcher.Constraint("DistanceX", -1, 1, 56, 3, 104.660605))
sketch1.addConstraint(Sketcher.Constraint("DistanceX", -1, 1, 66, 3, 104.411043))
sketch1.addConstraint(Sketcher.Constraint("DistanceY", 66, 3, -1, 1, 76.243237))
sketch1.setExpression("Constraints[135]", "Params.sketch1_radius")
sketch1.setExpression("Constraints[136]", "Params.sketch1_diameter")
sketch1.setExpression("Constraints[137]", "Params.sketch1_diameter2")
sketch1.setExpression("Constraints[138]", "Params.sketch1_diameter3")
sketch1.setExpression("Constraints[139]", "Params.sketch1_width")
pad1 = body.newObject("PartDesign::Pad", "Pad")
pad1.Profile = sketch1
pad1.setExpression("Length", "Params.pad1_length")

sketch2 = body.newObject("Sketcher::SketchObject", "Sketch001")
sketch2.AttachmentSupport = (doc.getObject("XY_Plane"), [""])
sketch2.MapMode = "FlatFace"
sketch2.AttachmentOffset = App.Placement(App.Vector(0, 0, 75.795295), App.Rotation())
sketch2.addGeometry(Part.Circle(App.Vector(2.38125, 45.212, 0), App.Vector(0, 0, 1), 1.1303), False)
sketch2.addConstraint(Sketcher.Constraint("Diameter", 0, Q("0.089 in")))
sketch2.addConstraint(Sketcher.Constraint("DistanceY", -1, 1, 0, 3, Q("1.78 in")))
sketch2.addConstraint(Sketcher.Constraint("DistanceX", -1, 1, 0, 3, Q("0.09375 in")))
sketch2.setExpression("Constraints[0]", "Params.sketch2_diameter")
pocket1 = body.newObject("PartDesign::Pocket", "Pocket")
pocket1.Profile = sketch2
pocket1.setExpression("Length", "Params.pocket1_length")

doc.recompute()
